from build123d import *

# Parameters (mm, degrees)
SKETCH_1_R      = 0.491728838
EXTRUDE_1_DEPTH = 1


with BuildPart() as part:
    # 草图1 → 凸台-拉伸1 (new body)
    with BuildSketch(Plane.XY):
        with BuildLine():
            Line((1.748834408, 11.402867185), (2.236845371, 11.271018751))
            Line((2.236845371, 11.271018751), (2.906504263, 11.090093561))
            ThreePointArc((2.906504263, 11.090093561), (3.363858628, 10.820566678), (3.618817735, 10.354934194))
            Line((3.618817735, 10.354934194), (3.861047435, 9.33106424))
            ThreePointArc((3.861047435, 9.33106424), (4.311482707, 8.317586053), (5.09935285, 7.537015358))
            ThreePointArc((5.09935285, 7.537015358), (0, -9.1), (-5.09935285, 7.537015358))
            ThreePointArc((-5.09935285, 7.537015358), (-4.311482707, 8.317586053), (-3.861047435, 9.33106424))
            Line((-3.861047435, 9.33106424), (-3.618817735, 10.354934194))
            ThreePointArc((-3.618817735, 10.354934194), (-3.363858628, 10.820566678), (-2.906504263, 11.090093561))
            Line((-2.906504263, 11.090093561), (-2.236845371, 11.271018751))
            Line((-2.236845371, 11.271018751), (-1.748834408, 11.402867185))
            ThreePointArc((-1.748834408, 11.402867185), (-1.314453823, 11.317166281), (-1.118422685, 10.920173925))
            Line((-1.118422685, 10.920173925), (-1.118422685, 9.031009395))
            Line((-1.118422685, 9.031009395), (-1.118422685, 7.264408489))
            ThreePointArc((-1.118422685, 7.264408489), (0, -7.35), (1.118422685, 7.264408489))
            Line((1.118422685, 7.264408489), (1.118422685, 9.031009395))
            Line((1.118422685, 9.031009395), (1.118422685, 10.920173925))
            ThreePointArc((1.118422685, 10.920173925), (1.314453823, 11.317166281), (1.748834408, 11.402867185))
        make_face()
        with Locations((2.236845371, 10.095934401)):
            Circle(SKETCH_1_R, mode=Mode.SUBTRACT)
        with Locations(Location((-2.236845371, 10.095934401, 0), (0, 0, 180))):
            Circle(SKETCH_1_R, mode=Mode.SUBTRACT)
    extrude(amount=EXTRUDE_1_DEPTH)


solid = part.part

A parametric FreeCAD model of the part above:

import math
import FreeCAD as App
import Part
import Sketcher

V = App.Vector

doc = App.newDocument("Part")
body = doc.addObject("PartDesign::Body", "Body")

# Sketch on XY plane
sketch1 = body.newObject("Sketcher::SketchObject", "Sketch")
sketch1.AttachmentSupport = (doc.getObject("XY_Plane"), [""])
sketch1.MapMode = "FlatFace"
sketch1.addGeometry([
    Part.LineSegment(V(2.24, 11.27, 0), V(1.75, 11.4, 0)),  # 0
    Part.ArcOfCircle(Part.Circle(V(1.62, 10.92, 0), V(0, 0, 1), 0.5), math.radians(75), math.radians(180)),  # 1
    Part.LineSegment(V(1.12, 10.92, 0), V(1.12, 7.26, 0)),  # 2
    Part.ArcOfCircle(Part.Circle(V(0, 0, 0), V(0, 0, 1), 7.35), math.radians(99), math.radians(441)),  # 3
    Part.LineSegment(V(-1.12, 7.26, 0), V(-1.12, 10.92, 0)),  # 4
    Part.ArcOfCircle(Part.Circle(V(-1.62, 10.92, 0), V(0, 0, 1), 0.5), math.radians(0), math.radians(105)),  # 5
    Part.LineSegment(V(-1.75, 11.4, 0), V(-2.24, 11.27, 0)),  # 6
    Part.LineSegment(V(-2.24, 11.27, 0), V(-2.91, 11.09, 0)),  # 7
    Part.ArcOfCircle(Part.Circle(V(-2.65, 10.12, 0), V(0, 0, 1), 1), math.radians(105), math.radians(167)),  # 8
    Part.LineSegment(V(-3.62, 10.35, 0), V(-3.86, 9.33, 0)),  # 9
    Part.ArcOfCircle(Part.Circle(V(-6.78, 10.02, 0), V(0, 0, 1), 3), math.radians(-56), math.radians(-13)),  # 10
    Part.ArcOfCircle(Part.Circle(V(0, 0, 0), V(0, 0, 1), 9.1), math.radians(124), math.radians(416)),  # 11
    Part.ArcOfCircle(Part.Circle(V(6.78, 10.02, 0), V(0, 0, 1), 3), math.radians(-167), math.radians(-124)),  # 12
    Part.LineSegment(V(3.86, 9.33, 0), V(3.62, 10.35, 0)),  # 13
    Part.ArcOfCircle(Part.Circle(V(2.65, 10.12, 0), V(0, 0, 1), 1), math.radians(13), math.radians(75)),  # 14
    Part.LineSegment(V(2.91, 11.09, 0), V(2.24, 11.27, 0)),  # 15
    Part.Circle(V(2.24, 10.1, 0), V(0, 0, 1), 0.49),  # 16
    Part.Circle(V(-2.24, 10.1, 0), V(0, 0, 1), 0.49),  # 17
], False)
sketch1.addConstraint([
    Sketcher.Constraint("Tangent", 0, 2, 1, 1),
    Sketcher.Constraint("Tangent", 1, 2, 2, 1),
    Sketcher.Constraint("Coincident", 2, 2, 3, 2),
    Sketcher.Constraint("Coincident", 3, 1, 4, 1),
    Sketcher.Constraint("Tangent", 4, 2, 5, 1),
    Sketcher.Constraint("Tangent", 5, 2, 6, 1),
    Sketcher.Constraint("Coincident", 6, 2, 7, 1),
    Sketcher.Constraint("Tangent", 7, 2, 8, 1),
    Sketcher.Constraint("Tangent", 8, 2, 9, 1),
    Sketcher.Constraint("Tangent", 9, 2, 10, 2),
    Sketcher.Constraint("Tangent", 10, 1, 11, 1),
    Sketcher.Constraint("Tangent", 11, 2, 12, 2),
    Sketcher.Constraint("Tangent", 12, 1, 13, 1),
    Sketcher.Constraint("Tangent", 13, 2, 14, 1),
    Sketcher.Constraint("Tangent", 14, 2, 15, 1),
    Sketcher.Constraint("Coincident", 15, 2, 0, 1),
    Sketcher.Constraint("Vertical", 2),
    Sketcher.Constraint("Vertical", 4),
    Sketcher.Constraint("Coincident", 3, 3, -1, 1),
    Sketcher.Constraint("Coincident", 11, 3, -1, 1),
    Sketcher.Constraint("Equal", 1, 5),
    Sketcher.Constraint("Equal", 10, 12),
    Sketcher.Constraint("Equal", 8, 14),
    Sketcher.Constraint("Equal", 16, 17),
    Sketcher.Constraint("Symmetric", 1, 3, 5, 3, -2),
    Sketcher.Constraint("Symmetric", 8, 3, 14, 3, -2),
    Sketcher.Constraint("Symmetric", 16, 3, 17, 3, -2),
    Sketcher.Constraint("Symmetric", 6, 2, 15, 2, -2),
    Sketcher.Constraint("Parallel", 6, 7),
    Sketcher.Constraint("Horizontal", 10, 3, 12, 3),
    Sketcher.Constraint("Vertical", 17, 3, 6, 2),
    Sketcher.Constraint("Radius", 8, 1.0),
    Sketcher.Constraint("Radius", 10, 3.0),
    Sketcher.Constraint("Radius", 1, 0.5),
    Sketcher.Constraint("Radius", 11, 9.1),
    Sketcher.Constraint("Radius", 3, 7.35),
    Sketcher.Constraint("Diameter", 16, 0.983458),
    Sketcher.Constraint("DistanceY", 17, 3, 8, 2, 0.259),
    Sketcher.Constraint("DistanceY", 2, 2, 14, 3, 2.860299),
    Sketcher.Constraint("Distance", 0, 0.505508),
    Sketcher.Constraint("Distance", 7, 0.693669),
    Sketcher.Constraint("DistanceY", 2, 2, 2, 1, 3.655765),
    Sketcher.Constraint("DistanceX", 8, 3, -1, 1, 2.645681),
    Sketcher.Constraint("DistanceX", 10, 3, -1, 1, 6.780458),
])
pad1 = body.newObject("PartDesign::Pad", "Pad")
pad1.Profile = sketch1
pad1.Length = 1

doc.recompute()
